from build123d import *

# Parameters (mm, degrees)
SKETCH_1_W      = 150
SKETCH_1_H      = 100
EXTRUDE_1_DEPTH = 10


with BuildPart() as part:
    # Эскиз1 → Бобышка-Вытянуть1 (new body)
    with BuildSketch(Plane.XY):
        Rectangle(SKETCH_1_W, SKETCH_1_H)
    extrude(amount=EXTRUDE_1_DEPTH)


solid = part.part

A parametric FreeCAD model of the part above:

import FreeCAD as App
import Part
import Sketcher

doc = App.newDocument("Part")
body = doc.addObject("PartDesign::Body", "Body")

# Sketch on XY plane
sketch1 = doc.addObject("Sketcher::SketchObject", "Sketch")
body.addObject(sketch1)
sketch1.AttachmentSupport = (doc.XY_Plane, [""])
sketch1.MapMode = "FlatFace"
sketch1.addGeometry(Part.LineSegment(App.Vector(-75, 50, 0), App.Vector(-75, -50, 0)), False)
sketch1.addGeometry(Part.LineSegment(App.Vector(-75, -50, 0), App.Vector(75, -50, 0)), False)
sketch1.addGeometry(Part.LineSegment(App.Vector(75, -50, 0), App.Vector(75, 50, 0)), False)
sketch1.addGeometry(Part.LineSegment(App.Vector(75, 50, 0), App.Vector(-75, 50, 0)), False)
sketch1.addConstraint(Sketcher.Constraint("Coincident", 0, 2, 1, 1))
sketch1.addConstraint(Sketcher.Constraint("Coincident", 1, 2, 2, 1))
sketch1.addConstraint(Sketcher.Constraint("Coincident", 2, 2, 3, 1))
sketch1.addConstraint(Sketcher.Constraint("Coincident", 3, 2, 0, 1))
sketch1.addConstraint(Sketcher.Constraint("Vertical", 0))
sketch1.addConstraint(Sketcher.Constraint("Horizontal", 1))
sketch1.addConstraint(Sketcher.Constraint("Vertical", 2))
sketch1.addConstraint(Sketcher.Constraint("Horizontal", 3))
sketch1.addConstraint(Sketcher.Constraint("Symmetric", 0, 2, 2, 2, -1, 1))
sketch1.addConstraint(Sketcher.Constraint("DistanceX", 1, 1, 1, 2, 150.0))
sketch1.addConstraint(Sketcher.Constraint("DistanceY", 0, 2, 0, 1, 100.0))
pad1 = doc.addObject("PartDesign::Pad", "Pad")
body.addObject(pad1)
pad1.Profile = sketch1
pad1.Length = 10

doc.recompute()
